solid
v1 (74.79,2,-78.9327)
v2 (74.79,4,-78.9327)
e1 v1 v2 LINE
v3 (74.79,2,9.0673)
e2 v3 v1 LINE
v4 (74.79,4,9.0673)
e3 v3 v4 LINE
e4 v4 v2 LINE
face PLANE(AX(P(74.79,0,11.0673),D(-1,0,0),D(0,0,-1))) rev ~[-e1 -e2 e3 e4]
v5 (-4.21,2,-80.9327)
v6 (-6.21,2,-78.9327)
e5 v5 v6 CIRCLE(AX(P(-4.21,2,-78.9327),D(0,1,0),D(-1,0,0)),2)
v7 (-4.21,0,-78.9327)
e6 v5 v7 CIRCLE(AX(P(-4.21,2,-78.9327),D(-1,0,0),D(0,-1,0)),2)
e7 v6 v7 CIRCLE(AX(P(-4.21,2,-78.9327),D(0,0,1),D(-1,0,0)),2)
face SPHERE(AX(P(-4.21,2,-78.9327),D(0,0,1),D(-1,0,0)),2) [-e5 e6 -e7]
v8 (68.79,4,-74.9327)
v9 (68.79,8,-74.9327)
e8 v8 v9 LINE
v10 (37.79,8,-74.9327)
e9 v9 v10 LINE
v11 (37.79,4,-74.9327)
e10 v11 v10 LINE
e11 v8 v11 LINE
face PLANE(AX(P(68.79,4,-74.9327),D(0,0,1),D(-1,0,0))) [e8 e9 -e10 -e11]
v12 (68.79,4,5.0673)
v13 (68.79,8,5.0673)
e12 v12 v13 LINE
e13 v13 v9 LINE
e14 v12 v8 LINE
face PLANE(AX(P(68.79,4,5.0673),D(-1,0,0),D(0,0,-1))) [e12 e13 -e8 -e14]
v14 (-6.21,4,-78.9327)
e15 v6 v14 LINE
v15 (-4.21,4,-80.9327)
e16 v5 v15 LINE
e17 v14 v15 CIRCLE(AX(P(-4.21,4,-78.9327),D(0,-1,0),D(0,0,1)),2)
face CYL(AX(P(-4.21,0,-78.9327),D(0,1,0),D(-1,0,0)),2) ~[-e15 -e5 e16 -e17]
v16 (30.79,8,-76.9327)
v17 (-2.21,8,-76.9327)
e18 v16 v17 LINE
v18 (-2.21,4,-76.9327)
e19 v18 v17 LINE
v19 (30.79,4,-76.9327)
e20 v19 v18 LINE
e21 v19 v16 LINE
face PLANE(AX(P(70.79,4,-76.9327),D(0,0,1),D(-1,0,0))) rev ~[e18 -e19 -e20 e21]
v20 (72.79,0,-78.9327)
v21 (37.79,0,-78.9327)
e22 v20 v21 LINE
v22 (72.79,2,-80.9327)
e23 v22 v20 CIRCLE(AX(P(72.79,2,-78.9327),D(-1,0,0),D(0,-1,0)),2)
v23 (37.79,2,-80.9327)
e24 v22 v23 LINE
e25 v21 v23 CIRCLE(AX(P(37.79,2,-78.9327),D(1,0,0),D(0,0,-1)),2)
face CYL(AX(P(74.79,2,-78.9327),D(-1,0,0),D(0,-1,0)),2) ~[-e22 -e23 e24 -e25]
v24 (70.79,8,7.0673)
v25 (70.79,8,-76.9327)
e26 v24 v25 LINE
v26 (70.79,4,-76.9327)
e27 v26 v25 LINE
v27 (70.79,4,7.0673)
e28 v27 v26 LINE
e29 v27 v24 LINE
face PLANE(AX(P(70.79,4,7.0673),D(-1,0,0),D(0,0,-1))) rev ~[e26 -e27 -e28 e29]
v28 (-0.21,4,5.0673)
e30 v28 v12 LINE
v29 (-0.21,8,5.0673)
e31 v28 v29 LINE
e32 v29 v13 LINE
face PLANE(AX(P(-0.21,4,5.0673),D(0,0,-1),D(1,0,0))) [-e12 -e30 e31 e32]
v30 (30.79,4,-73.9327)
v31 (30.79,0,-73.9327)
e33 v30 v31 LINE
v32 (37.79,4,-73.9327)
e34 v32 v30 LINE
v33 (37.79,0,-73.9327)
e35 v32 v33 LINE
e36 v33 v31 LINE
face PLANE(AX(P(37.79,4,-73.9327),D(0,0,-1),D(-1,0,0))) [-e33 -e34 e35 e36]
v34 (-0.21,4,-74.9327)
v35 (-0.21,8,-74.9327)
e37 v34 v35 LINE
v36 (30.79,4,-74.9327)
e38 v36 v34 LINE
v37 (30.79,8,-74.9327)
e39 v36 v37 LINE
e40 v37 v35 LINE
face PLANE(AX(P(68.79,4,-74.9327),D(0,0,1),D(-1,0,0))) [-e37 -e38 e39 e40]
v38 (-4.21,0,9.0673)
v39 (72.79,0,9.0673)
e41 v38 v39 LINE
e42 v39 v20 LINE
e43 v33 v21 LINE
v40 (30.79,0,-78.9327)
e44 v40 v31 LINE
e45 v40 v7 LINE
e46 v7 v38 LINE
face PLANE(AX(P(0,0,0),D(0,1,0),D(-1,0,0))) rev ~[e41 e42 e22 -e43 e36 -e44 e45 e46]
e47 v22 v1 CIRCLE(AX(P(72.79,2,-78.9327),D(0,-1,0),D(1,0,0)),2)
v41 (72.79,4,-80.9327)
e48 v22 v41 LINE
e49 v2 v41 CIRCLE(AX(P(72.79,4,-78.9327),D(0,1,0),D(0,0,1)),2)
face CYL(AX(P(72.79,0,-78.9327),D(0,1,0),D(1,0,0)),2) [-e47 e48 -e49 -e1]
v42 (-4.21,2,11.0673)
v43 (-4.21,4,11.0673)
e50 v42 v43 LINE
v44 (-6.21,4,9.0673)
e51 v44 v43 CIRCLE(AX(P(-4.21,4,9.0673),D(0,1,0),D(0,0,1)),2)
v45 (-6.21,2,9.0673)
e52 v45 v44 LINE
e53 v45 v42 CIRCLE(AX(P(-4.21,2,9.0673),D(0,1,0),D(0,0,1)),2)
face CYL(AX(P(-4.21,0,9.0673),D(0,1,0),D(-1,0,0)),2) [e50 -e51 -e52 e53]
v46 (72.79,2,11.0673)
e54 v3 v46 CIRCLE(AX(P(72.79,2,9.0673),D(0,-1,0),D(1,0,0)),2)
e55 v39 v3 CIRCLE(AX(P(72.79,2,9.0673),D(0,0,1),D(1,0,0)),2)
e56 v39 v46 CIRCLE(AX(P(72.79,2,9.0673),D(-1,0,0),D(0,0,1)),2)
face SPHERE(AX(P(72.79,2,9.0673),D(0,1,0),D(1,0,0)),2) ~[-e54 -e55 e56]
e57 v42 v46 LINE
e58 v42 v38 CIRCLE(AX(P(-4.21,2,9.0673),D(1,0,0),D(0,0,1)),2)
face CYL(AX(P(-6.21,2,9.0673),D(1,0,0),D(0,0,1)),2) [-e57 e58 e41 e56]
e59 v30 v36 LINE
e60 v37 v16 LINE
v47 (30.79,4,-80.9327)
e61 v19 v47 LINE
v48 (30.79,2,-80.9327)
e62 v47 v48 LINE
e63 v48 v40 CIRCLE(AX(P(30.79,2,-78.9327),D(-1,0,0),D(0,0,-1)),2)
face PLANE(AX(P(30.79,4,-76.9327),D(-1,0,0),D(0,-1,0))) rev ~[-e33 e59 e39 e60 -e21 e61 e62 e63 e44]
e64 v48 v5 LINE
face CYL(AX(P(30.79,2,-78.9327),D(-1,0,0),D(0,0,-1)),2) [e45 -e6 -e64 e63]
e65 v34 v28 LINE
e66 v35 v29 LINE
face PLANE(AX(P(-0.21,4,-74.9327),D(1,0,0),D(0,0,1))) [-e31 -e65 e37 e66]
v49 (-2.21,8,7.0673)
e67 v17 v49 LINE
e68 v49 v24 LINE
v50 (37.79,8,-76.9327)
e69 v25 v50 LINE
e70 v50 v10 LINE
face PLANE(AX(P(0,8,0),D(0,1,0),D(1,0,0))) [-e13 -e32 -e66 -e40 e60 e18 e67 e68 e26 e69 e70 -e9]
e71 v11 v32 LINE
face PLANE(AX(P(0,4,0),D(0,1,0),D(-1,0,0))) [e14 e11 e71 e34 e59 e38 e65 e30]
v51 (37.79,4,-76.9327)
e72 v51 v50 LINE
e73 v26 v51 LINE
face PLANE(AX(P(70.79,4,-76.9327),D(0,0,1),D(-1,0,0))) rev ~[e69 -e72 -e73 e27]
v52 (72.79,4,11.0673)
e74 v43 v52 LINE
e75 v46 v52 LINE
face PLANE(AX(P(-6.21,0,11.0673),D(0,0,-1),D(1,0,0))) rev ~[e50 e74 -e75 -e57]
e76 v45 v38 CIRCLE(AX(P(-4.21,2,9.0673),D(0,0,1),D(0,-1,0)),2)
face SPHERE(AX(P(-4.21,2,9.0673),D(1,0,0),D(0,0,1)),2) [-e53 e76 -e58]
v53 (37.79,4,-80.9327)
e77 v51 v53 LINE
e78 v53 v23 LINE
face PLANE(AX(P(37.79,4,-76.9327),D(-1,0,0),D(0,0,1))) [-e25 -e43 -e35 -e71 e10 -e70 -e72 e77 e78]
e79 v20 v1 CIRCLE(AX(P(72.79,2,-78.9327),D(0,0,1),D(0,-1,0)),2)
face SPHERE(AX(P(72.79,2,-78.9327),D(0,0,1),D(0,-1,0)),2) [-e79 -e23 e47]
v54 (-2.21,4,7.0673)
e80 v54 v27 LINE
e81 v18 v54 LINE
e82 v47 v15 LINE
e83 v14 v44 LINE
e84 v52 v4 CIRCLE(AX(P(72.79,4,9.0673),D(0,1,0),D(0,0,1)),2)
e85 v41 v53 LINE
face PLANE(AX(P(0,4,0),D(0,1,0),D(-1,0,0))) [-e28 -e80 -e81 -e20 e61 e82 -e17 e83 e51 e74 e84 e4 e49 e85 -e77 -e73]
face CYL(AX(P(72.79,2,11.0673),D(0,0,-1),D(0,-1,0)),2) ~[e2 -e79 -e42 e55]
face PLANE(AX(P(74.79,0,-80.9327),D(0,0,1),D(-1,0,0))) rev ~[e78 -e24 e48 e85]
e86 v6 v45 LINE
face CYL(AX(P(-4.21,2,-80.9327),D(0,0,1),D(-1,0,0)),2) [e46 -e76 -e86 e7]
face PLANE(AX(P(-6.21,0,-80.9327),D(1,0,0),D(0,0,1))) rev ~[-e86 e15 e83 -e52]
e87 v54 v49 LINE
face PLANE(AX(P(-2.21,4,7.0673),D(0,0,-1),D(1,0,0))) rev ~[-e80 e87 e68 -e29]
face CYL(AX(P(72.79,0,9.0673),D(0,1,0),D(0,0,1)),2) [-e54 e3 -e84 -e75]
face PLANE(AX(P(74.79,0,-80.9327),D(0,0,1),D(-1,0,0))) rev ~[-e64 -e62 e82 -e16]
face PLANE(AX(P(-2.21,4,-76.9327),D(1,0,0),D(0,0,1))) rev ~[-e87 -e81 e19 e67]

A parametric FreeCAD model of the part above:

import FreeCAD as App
import Part
import Sketcher

V = App.Vector


def edges_at(feature, points):
    """Names of the edges that pass closest to the given points."""
    edges = feature.Shape.Edges
    near = lambda p: min(range(len(edges)), key=lambda i: edges[i].distToShape(Part.Vertex(*p))[0])
    return sorted({f"Edge{near(p) + 1}" for p in points})


def add_polygon(sketch, points):
    """Adds a closed chain of lines whose ends are joined by coincident constraints."""
    first, n = sketch.GeometryCount, len(points)
    for a, b in zip(points, points[1:] + points[:1]):
        sketch.addGeometry(Part.LineSegment(App.Vector(*a, 0), App.Vector(*b, 0)), False)
    for i in range(n):
        sketch.addConstraint(Sketcher.Constraint("Coincident", first + i, 2, first + (i + 1) % n, 1))

doc = App.newDocument("Part")
params = doc.addObject("Spreadsheet::Sheet", "Params")
for row, (alias, value) in enumerate([
    ("sketch1_width", "81 mm"),
    ("sketch1_height", "92 mm"),
    ("pad1_length", "4 mm"),
    ("sketch2_width", "73 mm"),
    ("sketch2_width2", "69 mm"),
    ("sketch2_height", "84 mm"),
    ("sketch2_height2", "80 mm"),
    ("pad2_length", "4 mm"),
    ("sketch3_width", "7 mm"),
    ("sketch3_height", "3 mm"),
    ("pocket1_length", "4 mm"),
    ("sketch4_width", "7 mm"),
    ("sketch4_height", "2 mm"),
    ("pocket2_length", "10 mm"),
    ("sketch5_width", "7 mm"),
    ("sketch5_height", "4 mm"),
    ("pocket3_length", "10 mm"),
    ("fillet_radius", "2 mm"),
], start=1):
    params.set(f"A{row}", alias)
    params.set(f"B{row}", "=" + value)
    params.setAlias(f"B{row}", alias)

body = doc.addObject("PartDesign::Body", "Body")

sketch1 = body.newObject("Sketcher::SketchObject", "Sketch")
sketch1.AttachmentSupport = (doc.getObject("XZ_Plane"), [""])
sketch1.MapMode = "FlatFace"
add_polygon(sketch1, [(-6.21, -80.9327), (-6.21, 11.0673), (74.79, 11.0673), (74.79, -80.9327)])
sketch1.addConstraint([
    Sketcher.Constraint("Vertical", 0),
    Sketcher.Constraint("Horizontal", 1),
    Sketcher.Constraint("Vertical", 2),
    Sketcher.Constraint("Horizontal", 3),
    Sketcher.Constraint("DistanceX", 1, 1, 1, 2, 81.0),
    Sketcher.Constraint("DistanceY", 0, 1, 0, 2, 92.0),
    Sketcher.Constraint("DistanceX", 0, 2, -1, 1, 6.21),
    Sketcher.Constraint("DistanceY", -1, 1, 0, 2, 11.0673),
])
sketch1.setExpression("Constraints[8]", "Params.sketch1_width")
sketch1.setExpression("Constraints[9]", "Params.sketch1_height")
pad1 = body.newObject("PartDesign::Pad", "Pad")
pad1.Profile = sketch1
pad1.setExpression("Length", "Params.pad1_length")
pad1.Reversed = True

sketch2 = body.newObject("Sketcher::SketchObject", "Sketch001")
sketch2.AttachmentSupport = (doc.getObject("XZ_Plane"), [""])
sketch2.MapMode = "FlatFace"
sketch2.AttachmentOffset = App.Placement(V(0, 0, -4), App.Rotation())
add_polygon(sketch2, [(-2.21, -76.9327), (-2.21, 7.0673), (70.79, 7.0673), (70.79, -76.9327)])
add_polygon(sketch2, [(68.79, 5.0673), (-0.21, 5.0673), (-0.21, -74.9327), (68.79, -74.9327)])
sketch2.addConstraint([
    Sketcher.Constraint("Vertical", 0),
    Sketcher.Constraint("Horizontal", 1),
    Sketcher.Constraint("Vertical", 2),
    Sketcher.Constraint("Horizontal", 3),
    Sketcher.Constraint("Horizontal", 4),
    Sketcher.Constraint("Vertical", 5),
    Sketcher.Constraint("Horizontal", 6),
    Sketcher.Constraint("Vertical", 7),
    Sketcher.Constraint("DistanceX", 1, 1, 1, 2, 73.0),
    Sketcher.Constraint("DistanceX", 4, 2, 4, 1, 69.0),
    Sketcher.Constraint("DistanceY", 0, 1, 0, 2, 84.0),
    Sketcher.Constraint("DistanceY", 5, 2, 5, 1, 80.0),
    Sketcher.Constraint("DistanceX", 0, 2, 4, 2, 2.0),
    Sketcher.Constraint("DistanceY", 4, 2, 0, 2, 2.0),
    Sketcher.Constraint("DistanceX", 0, 2, -1, 1, 2.21),
    Sketcher.Constraint("DistanceY", -1, 1, 0, 2, 7.0673),
])
sketch2.setExpression("Constraints[16]", "Params.sketch2_width")
sketch2.setExpression("Constraints[17]", "Params.sketch2_width2")
sketch2.setExpression("Constraints[18]", "Params.sketch2_height")
sketch2.setExpression("Constraints[19]", "Params.sketch2_height2")
pad2 = body.newObject("PartDesign::Pad", "Pad001")
pad2.Profile = sketch2
pad2.setExpression("Length", "Params.pad2_length")
pad2.Reversed = True

sketch3 = body.newObject("Sketcher::SketchObject", "Sketch002")
sketch3.AttachmentSupport = (doc.getObject("XZ_Plane"), [""])
sketch3.MapMode = "FlatFace"
sketch3.AttachmentOffset = App.Placement(V(0, 0, -4), App.Rotation())
add_polygon(sketch3, [(37.79, -73.9327), (37.79, -76.9327), (30.79, -76.9327), (30.79, -73.9327)])
sketch3.addConstraint([
    Sketcher.Constraint("Vertical", 0),
    Sketcher.Constraint("Horizontal", 1),
    Sketcher.Constraint("Vertical", 2),
    Sketcher.Constraint("Horizontal", 3),
    Sketcher.Constraint("DistanceX", 1, 2, 1, 1, 7.0),
    Sketcher.Constraint("DistanceY", 0, 2, 0, 1, 3.0),
    Sketcher.Constraint("DistanceX", -1, 1, 0, 2, 37.79),
    Sketcher.Constraint("DistanceY", 0, 2, -1, 1, 76.9327),
])
sketch3.setExpression("Constraints[8]", "Params.sketch3_width")
sketch3.setExpression("Constraints[9]", "Params.sketch3_height")
pocket1 = body.newObject("PartDesign::Pocket", "Pocket")
pocket1.Profile = sketch3
pocket1.setExpression("Length", "Params.pocket1_length")
pocket1.Reversed = True

sketch4 = body.newObject("Sketcher::SketchObject", "Sketch003")
sketch4.AttachmentSupport = (doc.getObject("XZ_Plane"), [""])
sketch4.MapMode = "FlatFace"
sketch4.AttachmentOffset = App.Placement(V(0, 0, -4), App.Rotation())
add_polygon(sketch4, [(30.79, -74.9327), (30.79, -76.9327), (37.79, -76.9327), (37.79, -74.9327)])
sketch4.addConstraint([
    Sketcher.Constraint("Vertical", 0),
    Sketcher.Constraint("Horizontal", 1),
    Sketcher.Constraint("Vertical", 2),
    Sketcher.Constraint("Horizontal", 3),
    Sketcher.Constraint("DistanceX", 1, 1, 1, 2, 7.0),
    Sketcher.Constraint("DistanceY", 0, 2, 0, 1, 2.0),
    Sketcher.Constraint("DistanceX", -1, 1, 0, 2, 30.79),
    Sketcher.Constraint("DistanceY", 0, 2, -1, 1, 76.9327),
])
sketch4.setExpression("Constraints[8]", "Params.sketch4_width")
sketch4.setExpression("Constraints[9]", "Params.sketch4_height")
pocket2 = body.newObject("PartDesign::Pocket", "Pocket001")
pocket2.Profile = sketch4
pocket2.setExpression("Length", "Params.pocket2_length")

sketch5 = body.newObject("Sketcher::SketchObject", "Sketch004")
sketch5.AttachmentSupport = (doc.getObject("XY_Plane"), [""])
sketch5.MapMode = "FlatFace"
sketch5.AttachmentOffset = App.Placement(V(0, 0, -76.9327), App.Rotation())
add_polygon(sketch5, [(30.79, 0), (37.79, 0), (37.79, 4), (30.79, 4)])
sketch5.addConstraint([
    Sketcher.Constraint("Horizontal", 0),
    Sketcher.Constraint("Vertical", 1),
    Sketcher.Constraint("Horizontal", 2),
    Sketcher.Constraint("Vertical", 3),
    Sketcher.Constraint("PointOnObject", 0, 2, -1),
    Sketcher.Constraint("DistanceX", 0, 1, 0, 2, 7.0),
    Sketcher.Constraint("DistanceY", 1, 1, 1, 2, 4.0),
    Sketcher.Constraint("DistanceX", -1, 1, 0, 2, 37.79),
])
sketch5.setExpression("Constraints[9]", "Params.sketch5_width")
sketch5.setExpression("Constraints[10]", "Params.sketch5_height")
pocket3 = body.newObject("PartDesign::Pocket", "Pocket002")
pocket3.Profile = sketch5
pocket3.setExpression("Length", "Params.pocket3_length")
doc.recompute()

fillet = body.newObject("PartDesign::Fillet", "Fillet")
fillet.Base = (pocket3, edges_at(pocket3, [
    (74.79, 2, 11.067),
    (74.79, 0, -34.933),
    (34.29, 0, 11.067),
    (-6.21, 2, 11.067),
    (-6.21, 0, -34.933),
    (-6.21, 2, -80.933),
    (12.29, 0, -80.933),
    (56.29, 0, -80.933),
    (74.79, 2, -80.933),
]))
fillet.setExpression("Radius", "Params.fillet_radius")

doc.recompute()
